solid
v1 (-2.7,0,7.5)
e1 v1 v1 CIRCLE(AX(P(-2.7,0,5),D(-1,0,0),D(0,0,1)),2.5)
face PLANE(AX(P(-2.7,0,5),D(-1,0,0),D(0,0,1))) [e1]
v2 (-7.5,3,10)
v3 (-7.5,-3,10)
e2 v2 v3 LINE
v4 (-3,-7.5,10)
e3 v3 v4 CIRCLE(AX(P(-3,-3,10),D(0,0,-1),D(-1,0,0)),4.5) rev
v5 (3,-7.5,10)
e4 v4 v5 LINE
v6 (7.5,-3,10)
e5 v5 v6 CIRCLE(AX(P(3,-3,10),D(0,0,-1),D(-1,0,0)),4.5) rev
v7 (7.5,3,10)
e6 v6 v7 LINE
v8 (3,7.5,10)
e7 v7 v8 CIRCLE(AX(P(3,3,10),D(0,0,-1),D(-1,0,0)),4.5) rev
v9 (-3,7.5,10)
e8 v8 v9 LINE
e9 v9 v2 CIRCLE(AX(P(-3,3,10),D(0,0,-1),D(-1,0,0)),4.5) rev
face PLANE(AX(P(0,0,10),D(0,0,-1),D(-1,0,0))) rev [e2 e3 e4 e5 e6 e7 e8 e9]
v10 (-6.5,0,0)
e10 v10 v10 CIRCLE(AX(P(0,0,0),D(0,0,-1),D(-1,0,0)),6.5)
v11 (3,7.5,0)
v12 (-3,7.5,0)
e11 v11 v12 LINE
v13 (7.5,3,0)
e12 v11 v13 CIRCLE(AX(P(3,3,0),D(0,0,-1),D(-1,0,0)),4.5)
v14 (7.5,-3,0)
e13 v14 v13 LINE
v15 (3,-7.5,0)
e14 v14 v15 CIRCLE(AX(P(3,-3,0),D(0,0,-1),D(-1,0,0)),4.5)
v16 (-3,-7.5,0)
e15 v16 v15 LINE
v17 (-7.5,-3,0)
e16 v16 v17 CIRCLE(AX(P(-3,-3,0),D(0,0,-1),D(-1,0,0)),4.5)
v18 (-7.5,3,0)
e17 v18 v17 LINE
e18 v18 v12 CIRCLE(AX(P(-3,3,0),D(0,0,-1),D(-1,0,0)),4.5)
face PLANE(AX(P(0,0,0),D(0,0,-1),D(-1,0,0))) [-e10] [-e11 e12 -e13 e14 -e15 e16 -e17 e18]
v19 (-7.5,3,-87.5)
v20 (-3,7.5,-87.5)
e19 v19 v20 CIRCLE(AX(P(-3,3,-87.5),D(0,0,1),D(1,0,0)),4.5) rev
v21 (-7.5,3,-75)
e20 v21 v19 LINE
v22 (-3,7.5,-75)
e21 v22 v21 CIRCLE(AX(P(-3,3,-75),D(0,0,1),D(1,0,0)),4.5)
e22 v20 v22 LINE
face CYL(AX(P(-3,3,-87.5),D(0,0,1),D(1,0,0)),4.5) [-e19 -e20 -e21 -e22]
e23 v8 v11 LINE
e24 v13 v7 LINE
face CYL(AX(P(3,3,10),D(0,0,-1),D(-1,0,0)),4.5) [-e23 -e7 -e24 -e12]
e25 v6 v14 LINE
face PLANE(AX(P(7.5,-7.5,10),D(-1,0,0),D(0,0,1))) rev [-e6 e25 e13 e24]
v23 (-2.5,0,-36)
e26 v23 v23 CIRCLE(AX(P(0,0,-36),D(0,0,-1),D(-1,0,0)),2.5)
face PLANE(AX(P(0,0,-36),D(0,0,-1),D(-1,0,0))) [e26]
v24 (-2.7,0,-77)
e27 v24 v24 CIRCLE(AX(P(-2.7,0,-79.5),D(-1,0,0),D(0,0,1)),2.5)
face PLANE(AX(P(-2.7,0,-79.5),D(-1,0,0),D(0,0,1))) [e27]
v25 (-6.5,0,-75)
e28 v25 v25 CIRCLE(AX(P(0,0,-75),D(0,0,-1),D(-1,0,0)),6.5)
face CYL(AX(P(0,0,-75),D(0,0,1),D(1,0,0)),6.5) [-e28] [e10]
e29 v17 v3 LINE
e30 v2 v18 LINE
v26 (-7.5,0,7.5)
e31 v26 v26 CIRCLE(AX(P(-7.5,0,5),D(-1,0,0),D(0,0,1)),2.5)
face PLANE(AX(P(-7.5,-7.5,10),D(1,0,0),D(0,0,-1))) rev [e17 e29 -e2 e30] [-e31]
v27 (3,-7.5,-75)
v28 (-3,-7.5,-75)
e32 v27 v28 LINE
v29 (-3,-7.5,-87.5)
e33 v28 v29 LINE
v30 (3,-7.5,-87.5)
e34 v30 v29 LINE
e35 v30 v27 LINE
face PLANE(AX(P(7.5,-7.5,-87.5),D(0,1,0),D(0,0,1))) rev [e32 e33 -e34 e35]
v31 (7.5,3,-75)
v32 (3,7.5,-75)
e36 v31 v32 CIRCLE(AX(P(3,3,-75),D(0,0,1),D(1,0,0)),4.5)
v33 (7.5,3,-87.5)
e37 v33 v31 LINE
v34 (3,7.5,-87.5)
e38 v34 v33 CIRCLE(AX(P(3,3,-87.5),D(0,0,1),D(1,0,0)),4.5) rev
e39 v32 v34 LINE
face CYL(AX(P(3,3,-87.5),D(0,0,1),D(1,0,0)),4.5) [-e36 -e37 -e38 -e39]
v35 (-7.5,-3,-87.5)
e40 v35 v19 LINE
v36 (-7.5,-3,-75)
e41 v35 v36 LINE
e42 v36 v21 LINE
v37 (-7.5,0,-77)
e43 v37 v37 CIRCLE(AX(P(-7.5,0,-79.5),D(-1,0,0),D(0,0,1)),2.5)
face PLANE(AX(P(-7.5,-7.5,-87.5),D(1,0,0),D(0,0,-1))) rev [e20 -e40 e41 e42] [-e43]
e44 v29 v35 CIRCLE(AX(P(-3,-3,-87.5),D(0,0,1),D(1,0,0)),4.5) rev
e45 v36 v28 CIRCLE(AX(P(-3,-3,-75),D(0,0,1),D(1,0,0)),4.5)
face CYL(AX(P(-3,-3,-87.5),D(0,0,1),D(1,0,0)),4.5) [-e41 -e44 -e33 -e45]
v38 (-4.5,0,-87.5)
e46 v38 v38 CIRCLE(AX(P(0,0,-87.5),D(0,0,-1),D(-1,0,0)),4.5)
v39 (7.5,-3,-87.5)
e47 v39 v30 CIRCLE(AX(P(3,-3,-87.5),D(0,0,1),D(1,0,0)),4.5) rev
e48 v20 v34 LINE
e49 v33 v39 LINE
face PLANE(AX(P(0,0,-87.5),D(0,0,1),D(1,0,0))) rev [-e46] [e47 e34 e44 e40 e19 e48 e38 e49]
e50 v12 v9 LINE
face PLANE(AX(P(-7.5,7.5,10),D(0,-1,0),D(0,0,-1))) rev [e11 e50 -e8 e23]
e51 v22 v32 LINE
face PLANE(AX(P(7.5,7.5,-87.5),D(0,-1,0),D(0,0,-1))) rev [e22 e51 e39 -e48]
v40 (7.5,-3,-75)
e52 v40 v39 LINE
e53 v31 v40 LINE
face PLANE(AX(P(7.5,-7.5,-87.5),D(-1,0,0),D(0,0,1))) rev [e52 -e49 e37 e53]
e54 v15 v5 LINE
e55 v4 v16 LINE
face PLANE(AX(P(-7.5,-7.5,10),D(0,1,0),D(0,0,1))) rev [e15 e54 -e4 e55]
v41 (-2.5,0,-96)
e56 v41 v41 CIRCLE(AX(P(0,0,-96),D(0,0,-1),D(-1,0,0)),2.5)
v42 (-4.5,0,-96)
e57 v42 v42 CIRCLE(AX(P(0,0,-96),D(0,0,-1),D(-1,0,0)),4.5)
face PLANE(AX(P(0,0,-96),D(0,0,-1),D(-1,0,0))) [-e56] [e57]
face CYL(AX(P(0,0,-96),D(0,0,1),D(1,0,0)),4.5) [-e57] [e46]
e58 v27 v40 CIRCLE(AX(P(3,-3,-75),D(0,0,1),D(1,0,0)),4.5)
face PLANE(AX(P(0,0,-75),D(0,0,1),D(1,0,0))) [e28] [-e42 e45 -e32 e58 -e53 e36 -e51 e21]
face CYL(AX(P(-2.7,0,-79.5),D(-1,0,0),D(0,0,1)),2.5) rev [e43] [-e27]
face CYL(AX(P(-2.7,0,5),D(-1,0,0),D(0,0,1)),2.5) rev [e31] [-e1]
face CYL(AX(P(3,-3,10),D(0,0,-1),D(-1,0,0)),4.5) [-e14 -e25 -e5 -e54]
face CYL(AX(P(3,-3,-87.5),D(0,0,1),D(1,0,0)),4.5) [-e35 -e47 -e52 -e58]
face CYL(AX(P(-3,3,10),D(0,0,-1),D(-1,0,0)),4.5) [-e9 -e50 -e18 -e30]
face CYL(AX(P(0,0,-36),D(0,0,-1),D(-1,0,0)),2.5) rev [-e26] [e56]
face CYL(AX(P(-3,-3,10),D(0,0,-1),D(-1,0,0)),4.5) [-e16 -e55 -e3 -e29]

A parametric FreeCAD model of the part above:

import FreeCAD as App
import Part
import Sketcher


def edges_at(feature, points):
    """Names of the edges that pass closest to the given points."""
    edges = feature.Shape.Edges
    near = lambda p: min(range(len(edges)), key=lambda i: edges[i].distToShape(Part.Vertex(*p))[0])
    return sorted({f"Edge{near(p) + 1}" for p in points})


def add_polygon(sketch, points):
    """Adds a closed chain of lines whose ends are joined by coincident constraints."""
    first, n = sketch.GeometryCount, len(points)
    for a, b in zip(points, points[1:] + points[:1]):
        sketch.addGeometry(Part.LineSegment(App.Vector(*a, 0), App.Vector(*b, 0)), False)
    for i in range(n):
        sketch.addConstraint(Sketcher.Constraint("Coincident", first + i, 2, first + (i + 1) % n, 1))

doc = App.newDocument("Part")
params = doc.addObject("Spreadsheet::Sheet", "Params")
for row, (alias, value) in enumerate([
    ("sketch1_width", "15 mm"),
    ("pad1_length", "10 mm"),
    ("fillet_radius", "4.5 mm"),
    ("sketch2_diameter", "5 mm"),
    ("pocket1_length", "4.8 mm"),
    ("sketch3_diameter", "13 mm"),
    ("pad2_length", "75 mm"),
    ("sketch4_width", "15 mm"),
    ("pad3_length", "12.5 mm"),
    ("fillet2_radius", "4.5 mm"),
    ("sketch5_diameter", "9 mm"),
    ("pad4_length", "8.5 mm"),
    ("sketch6_diameter", "5 mm"),
    ("pocket2_length", "4.8 mm"),
    ("sketch7_diameter", "5 mm"),
    ("pocket3_length", "60 mm"),
], start=1):
    params.set(f"A{row}", alias)
    params.set(f"B{row}", "=" + value)
    params.setAlias(f"B{row}", alias)

body = doc.addObject("PartDesign::Body", "Body")

# Sketch on XY plane
sketch1 = body.newObject("Sketcher::SketchObject", "Sketch")
sketch1.AttachmentSupport = (doc.getObject("XY_Plane"), [""])
sketch1.MapMode = "FlatFace"
add_polygon(sketch1, [(-8, 8), (-8, -8), (8, -8), (8, 8)])  # lines 0-3
sketch1.addConstraint([
    Sketcher.Constraint("Vertical", 0),
    Sketcher.Constraint("Horizontal", 1),
    Sketcher.Constraint("Vertical", 2),
    Sketcher.Constraint("Horizontal", 3),
    Sketcher.Constraint("Symmetric", 0, 2, 2, 2, -1, 1),
    Sketcher.Constraint("Equal", 3, 0),
    Sketcher.Constraint("DistanceX", 1, 1, 1, 2, 15.0),
])
sketch1.setExpression("Constraints[10]", "Params.sketch1_width")
pad1 = body.newObject("PartDesign::Pad", "Pad")
pad1.Profile = sketch1
pad1.setExpression("Length", "Params.pad1_length")
doc.recompute()

fillet = body.newObject("PartDesign::Fillet", "Fillet")
fillet.Base = (pad1, edges_at(pad1, [
    (7.5, -7.5, 5),
    (-7.5, -7.5, 5),
    (-7.5, 7.5, 5),
    (7.5, 7.5, 5),
]))
fillet.setExpression("Radius", "Params.fillet_radius")

# Sketch on YZ plane
sketch2 = body.newObject("Sketcher::SketchObject", "Sketch001")
sketch2.AttachmentSupport = (doc.getObject("YZ_Plane"), [""])
sketch2.MapMode = "FlatFace"
sketch2.AttachmentOffset = App.Placement(App.Vector(0, 0, -7.5), App.Rotation())
sketch2.addGeometry(Part.Circle(App.Vector(0, 5, 0), App.Vector(0, 0, 1), 2.5), False)
sketch2.addConstraint([
    Sketcher.Constraint("PointOnObject", 0, 3, -2),
    Sketcher.Constraint("Diameter", 0, 5.0),
    Sketcher.Constraint("DistanceY", -1, 1, 0, 3, 5.0),
])
sketch2.setExpression("Constraints[1]", "Params.sketch2_diameter")
pocket1 = body.newObject("PartDesign::Pocket", "Pocket")
pocket1.Profile = sketch2
pocket1.setExpression("Length", "Params.pocket1_length")
pocket1.Reversed = True

# Sketch on XY plane
sketch3 = body.newObject("Sketcher::SketchObject", "Sketch002")
sketch3.AttachmentSupport = (doc.getObject("XY_Plane"), [""])
sketch3.MapMode = "FlatFace"
sketch3.addGeometry(Part.Circle(App.Vector(0, 0, 0), App.Vector(0, 0, 1), 6), False)
sketch3.addConstraint([
    Sketcher.Constraint("Coincident", 0, 3, -1, 1),
    Sketcher.Constraint("Diameter", 0, 13.0),
])
sketch3.setExpression("Constraints[1]", "Params.sketch3_diameter")
pad2 = body.newObject("PartDesign::Pad", "Pad001")
pad2.Profile = sketch3
pad2.setExpression("Length", "Params.pad2_length")
pad2.Reversed = True

# Sketch on XY plane
sketch4 = body.newObject("Sketcher::SketchObject", "Sketch003")
sketch4.AttachmentSupport = (doc.getObject("XY_Plane"), [""])
sketch4.MapMode = "FlatFace"
sketch4.AttachmentOffset = App.Placement(App.Vector(0, 0, -75), App.Rotation())
add_polygon(sketch4, [(8, 8), (8, -8), (-8, -8), (-8, 8)])  # lines 0-3
sketch4.addConstraint([
    Sketcher.Constraint("Vertical", 0),
    Sketcher.Constraint("Horizontal", 1),
    Sketcher.Constraint("Vertical", 2),
    Sketcher.Constraint("Horizontal", 3),
    Sketcher.Constraint("Symmetric", 0, 2, 2, 2, -1, 1),
    Sketcher.Constraint("Equal", 3, 0),
    Sketcher.Constraint("DistanceX", 1, 2, 1, 1, 15.0),
])
sketch4.setExpression("Constraints[10]", "Params.sketch4_width")
pad3 = body.newObject("PartDesign::Pad", "Pad002")
pad3.Profile = sketch4
pad3.setExpression("Length", "Params.pad3_length")
pad3.Reversed = True
doc.recompute()

fillet2 = body.newObject("PartDesign::Fillet", "Fillet001")
fillet2.Base = (pad3, edges_at(pad3, [
    (-7.5, -7.5, -81.25),
    (-7.5, 7.5, -81.25),
    (7.5, 7.5, -81.25),
    (7.5, -7.5, -81.25),
]))
fillet2.setExpression("Radius", "Params.fillet2_radius")

# Sketch on XY plane
sketch5 = body.newObject("Sketcher::SketchObject", "Sketch004")
sketch5.AttachmentSupport = (doc.getObject("XY_Plane"), [""])
sketch5.MapMode = "FlatFace"
sketch5.AttachmentOffset = App.Placement(App.Vector(0, 0, -87.5), App.Rotation())
sketch5.addGeometry(Part.Circle(App.Vector(0, 0, 0), App.Vector(0, 0, 1), 4.5), False)
sketch5.addConstraint([
    Sketcher.Constraint("Coincident", 0, 3, -1, 1),
    Sketcher.Constraint("Diameter", 0, 9.0),
])
sketch5.setExpression("Constraints[1]", "Params.sketch5_diameter")
pad4 = body.newObject("PartDesign::Pad", "Pad003")
pad4.Profile = sketch5
pad4.setExpression("Length", "Params.pad4_length")
pad4.Reversed = True

# Sketch on YZ plane
sketch6 = body.newObject("Sketcher::SketchObject", "Sketch005")
sketch6.AttachmentSupport = (doc.getObject("YZ_Plane"), [""])
sketch6.MapMode = "FlatFace"
sketch6.AttachmentOffset = App.Placement(App.Vector(0, 0, -7.5), App.Rotation())
sketch6.addGeometry(Part.Circle(App.Vector(0, -79.5, 0), App.Vector(0, 0, 1), 2.5), False)
sketch6.addConstraint([
    Sketcher.Constraint("PointOnObject", 0, 3, -2),
    Sketcher.Constraint("Diameter", 0, 5.0),
    Sketcher.Constraint("DistanceY", 0, 3, -1, 1, 79.5),
])
sketch6.setExpression("Constraints[1]", "Params.sketch6_diameter")
pocket2 = body.newObject("PartDesign::Pocket", "Pocket001")
pocket2.Profile = sketch6
pocket2.setExpression("Length", "Params.pocket2_length")
pocket2.Reversed = True

# Sketch on XY plane
sketch7 = body.newObject("Sketcher::SketchObject", "Sketch006")
sketch7.AttachmentSupport = (doc.getObject("XY_Plane"), [""])
sketch7.MapMode = "FlatFace"
sketch7.AttachmentOffset = App.Placement(App.Vector(0, 0, -96), App.Rotation())
sketch7.addGeometry(Part.Circle(App.Vector(0, 0, 0), App.Vector(0, 0, 1), 2.5), False)
sketch7.addConstraint([
    Sketcher.Constraint("Coincident", 0, 3, -1, 1),
    Sketcher.Constraint("Diameter", 0, 5.0),
])
sketch7.setExpression("Constraints[1]", "Params.sketch7_diameter")
pocket3 = body.newObject("PartDesign::Pocket", "Pocket002")
pocket3.Profile = sketch7
pocket3.setExpression("Length", "Params.pocket3_length")
pocket3.Reversed = True

doc.recompute()
